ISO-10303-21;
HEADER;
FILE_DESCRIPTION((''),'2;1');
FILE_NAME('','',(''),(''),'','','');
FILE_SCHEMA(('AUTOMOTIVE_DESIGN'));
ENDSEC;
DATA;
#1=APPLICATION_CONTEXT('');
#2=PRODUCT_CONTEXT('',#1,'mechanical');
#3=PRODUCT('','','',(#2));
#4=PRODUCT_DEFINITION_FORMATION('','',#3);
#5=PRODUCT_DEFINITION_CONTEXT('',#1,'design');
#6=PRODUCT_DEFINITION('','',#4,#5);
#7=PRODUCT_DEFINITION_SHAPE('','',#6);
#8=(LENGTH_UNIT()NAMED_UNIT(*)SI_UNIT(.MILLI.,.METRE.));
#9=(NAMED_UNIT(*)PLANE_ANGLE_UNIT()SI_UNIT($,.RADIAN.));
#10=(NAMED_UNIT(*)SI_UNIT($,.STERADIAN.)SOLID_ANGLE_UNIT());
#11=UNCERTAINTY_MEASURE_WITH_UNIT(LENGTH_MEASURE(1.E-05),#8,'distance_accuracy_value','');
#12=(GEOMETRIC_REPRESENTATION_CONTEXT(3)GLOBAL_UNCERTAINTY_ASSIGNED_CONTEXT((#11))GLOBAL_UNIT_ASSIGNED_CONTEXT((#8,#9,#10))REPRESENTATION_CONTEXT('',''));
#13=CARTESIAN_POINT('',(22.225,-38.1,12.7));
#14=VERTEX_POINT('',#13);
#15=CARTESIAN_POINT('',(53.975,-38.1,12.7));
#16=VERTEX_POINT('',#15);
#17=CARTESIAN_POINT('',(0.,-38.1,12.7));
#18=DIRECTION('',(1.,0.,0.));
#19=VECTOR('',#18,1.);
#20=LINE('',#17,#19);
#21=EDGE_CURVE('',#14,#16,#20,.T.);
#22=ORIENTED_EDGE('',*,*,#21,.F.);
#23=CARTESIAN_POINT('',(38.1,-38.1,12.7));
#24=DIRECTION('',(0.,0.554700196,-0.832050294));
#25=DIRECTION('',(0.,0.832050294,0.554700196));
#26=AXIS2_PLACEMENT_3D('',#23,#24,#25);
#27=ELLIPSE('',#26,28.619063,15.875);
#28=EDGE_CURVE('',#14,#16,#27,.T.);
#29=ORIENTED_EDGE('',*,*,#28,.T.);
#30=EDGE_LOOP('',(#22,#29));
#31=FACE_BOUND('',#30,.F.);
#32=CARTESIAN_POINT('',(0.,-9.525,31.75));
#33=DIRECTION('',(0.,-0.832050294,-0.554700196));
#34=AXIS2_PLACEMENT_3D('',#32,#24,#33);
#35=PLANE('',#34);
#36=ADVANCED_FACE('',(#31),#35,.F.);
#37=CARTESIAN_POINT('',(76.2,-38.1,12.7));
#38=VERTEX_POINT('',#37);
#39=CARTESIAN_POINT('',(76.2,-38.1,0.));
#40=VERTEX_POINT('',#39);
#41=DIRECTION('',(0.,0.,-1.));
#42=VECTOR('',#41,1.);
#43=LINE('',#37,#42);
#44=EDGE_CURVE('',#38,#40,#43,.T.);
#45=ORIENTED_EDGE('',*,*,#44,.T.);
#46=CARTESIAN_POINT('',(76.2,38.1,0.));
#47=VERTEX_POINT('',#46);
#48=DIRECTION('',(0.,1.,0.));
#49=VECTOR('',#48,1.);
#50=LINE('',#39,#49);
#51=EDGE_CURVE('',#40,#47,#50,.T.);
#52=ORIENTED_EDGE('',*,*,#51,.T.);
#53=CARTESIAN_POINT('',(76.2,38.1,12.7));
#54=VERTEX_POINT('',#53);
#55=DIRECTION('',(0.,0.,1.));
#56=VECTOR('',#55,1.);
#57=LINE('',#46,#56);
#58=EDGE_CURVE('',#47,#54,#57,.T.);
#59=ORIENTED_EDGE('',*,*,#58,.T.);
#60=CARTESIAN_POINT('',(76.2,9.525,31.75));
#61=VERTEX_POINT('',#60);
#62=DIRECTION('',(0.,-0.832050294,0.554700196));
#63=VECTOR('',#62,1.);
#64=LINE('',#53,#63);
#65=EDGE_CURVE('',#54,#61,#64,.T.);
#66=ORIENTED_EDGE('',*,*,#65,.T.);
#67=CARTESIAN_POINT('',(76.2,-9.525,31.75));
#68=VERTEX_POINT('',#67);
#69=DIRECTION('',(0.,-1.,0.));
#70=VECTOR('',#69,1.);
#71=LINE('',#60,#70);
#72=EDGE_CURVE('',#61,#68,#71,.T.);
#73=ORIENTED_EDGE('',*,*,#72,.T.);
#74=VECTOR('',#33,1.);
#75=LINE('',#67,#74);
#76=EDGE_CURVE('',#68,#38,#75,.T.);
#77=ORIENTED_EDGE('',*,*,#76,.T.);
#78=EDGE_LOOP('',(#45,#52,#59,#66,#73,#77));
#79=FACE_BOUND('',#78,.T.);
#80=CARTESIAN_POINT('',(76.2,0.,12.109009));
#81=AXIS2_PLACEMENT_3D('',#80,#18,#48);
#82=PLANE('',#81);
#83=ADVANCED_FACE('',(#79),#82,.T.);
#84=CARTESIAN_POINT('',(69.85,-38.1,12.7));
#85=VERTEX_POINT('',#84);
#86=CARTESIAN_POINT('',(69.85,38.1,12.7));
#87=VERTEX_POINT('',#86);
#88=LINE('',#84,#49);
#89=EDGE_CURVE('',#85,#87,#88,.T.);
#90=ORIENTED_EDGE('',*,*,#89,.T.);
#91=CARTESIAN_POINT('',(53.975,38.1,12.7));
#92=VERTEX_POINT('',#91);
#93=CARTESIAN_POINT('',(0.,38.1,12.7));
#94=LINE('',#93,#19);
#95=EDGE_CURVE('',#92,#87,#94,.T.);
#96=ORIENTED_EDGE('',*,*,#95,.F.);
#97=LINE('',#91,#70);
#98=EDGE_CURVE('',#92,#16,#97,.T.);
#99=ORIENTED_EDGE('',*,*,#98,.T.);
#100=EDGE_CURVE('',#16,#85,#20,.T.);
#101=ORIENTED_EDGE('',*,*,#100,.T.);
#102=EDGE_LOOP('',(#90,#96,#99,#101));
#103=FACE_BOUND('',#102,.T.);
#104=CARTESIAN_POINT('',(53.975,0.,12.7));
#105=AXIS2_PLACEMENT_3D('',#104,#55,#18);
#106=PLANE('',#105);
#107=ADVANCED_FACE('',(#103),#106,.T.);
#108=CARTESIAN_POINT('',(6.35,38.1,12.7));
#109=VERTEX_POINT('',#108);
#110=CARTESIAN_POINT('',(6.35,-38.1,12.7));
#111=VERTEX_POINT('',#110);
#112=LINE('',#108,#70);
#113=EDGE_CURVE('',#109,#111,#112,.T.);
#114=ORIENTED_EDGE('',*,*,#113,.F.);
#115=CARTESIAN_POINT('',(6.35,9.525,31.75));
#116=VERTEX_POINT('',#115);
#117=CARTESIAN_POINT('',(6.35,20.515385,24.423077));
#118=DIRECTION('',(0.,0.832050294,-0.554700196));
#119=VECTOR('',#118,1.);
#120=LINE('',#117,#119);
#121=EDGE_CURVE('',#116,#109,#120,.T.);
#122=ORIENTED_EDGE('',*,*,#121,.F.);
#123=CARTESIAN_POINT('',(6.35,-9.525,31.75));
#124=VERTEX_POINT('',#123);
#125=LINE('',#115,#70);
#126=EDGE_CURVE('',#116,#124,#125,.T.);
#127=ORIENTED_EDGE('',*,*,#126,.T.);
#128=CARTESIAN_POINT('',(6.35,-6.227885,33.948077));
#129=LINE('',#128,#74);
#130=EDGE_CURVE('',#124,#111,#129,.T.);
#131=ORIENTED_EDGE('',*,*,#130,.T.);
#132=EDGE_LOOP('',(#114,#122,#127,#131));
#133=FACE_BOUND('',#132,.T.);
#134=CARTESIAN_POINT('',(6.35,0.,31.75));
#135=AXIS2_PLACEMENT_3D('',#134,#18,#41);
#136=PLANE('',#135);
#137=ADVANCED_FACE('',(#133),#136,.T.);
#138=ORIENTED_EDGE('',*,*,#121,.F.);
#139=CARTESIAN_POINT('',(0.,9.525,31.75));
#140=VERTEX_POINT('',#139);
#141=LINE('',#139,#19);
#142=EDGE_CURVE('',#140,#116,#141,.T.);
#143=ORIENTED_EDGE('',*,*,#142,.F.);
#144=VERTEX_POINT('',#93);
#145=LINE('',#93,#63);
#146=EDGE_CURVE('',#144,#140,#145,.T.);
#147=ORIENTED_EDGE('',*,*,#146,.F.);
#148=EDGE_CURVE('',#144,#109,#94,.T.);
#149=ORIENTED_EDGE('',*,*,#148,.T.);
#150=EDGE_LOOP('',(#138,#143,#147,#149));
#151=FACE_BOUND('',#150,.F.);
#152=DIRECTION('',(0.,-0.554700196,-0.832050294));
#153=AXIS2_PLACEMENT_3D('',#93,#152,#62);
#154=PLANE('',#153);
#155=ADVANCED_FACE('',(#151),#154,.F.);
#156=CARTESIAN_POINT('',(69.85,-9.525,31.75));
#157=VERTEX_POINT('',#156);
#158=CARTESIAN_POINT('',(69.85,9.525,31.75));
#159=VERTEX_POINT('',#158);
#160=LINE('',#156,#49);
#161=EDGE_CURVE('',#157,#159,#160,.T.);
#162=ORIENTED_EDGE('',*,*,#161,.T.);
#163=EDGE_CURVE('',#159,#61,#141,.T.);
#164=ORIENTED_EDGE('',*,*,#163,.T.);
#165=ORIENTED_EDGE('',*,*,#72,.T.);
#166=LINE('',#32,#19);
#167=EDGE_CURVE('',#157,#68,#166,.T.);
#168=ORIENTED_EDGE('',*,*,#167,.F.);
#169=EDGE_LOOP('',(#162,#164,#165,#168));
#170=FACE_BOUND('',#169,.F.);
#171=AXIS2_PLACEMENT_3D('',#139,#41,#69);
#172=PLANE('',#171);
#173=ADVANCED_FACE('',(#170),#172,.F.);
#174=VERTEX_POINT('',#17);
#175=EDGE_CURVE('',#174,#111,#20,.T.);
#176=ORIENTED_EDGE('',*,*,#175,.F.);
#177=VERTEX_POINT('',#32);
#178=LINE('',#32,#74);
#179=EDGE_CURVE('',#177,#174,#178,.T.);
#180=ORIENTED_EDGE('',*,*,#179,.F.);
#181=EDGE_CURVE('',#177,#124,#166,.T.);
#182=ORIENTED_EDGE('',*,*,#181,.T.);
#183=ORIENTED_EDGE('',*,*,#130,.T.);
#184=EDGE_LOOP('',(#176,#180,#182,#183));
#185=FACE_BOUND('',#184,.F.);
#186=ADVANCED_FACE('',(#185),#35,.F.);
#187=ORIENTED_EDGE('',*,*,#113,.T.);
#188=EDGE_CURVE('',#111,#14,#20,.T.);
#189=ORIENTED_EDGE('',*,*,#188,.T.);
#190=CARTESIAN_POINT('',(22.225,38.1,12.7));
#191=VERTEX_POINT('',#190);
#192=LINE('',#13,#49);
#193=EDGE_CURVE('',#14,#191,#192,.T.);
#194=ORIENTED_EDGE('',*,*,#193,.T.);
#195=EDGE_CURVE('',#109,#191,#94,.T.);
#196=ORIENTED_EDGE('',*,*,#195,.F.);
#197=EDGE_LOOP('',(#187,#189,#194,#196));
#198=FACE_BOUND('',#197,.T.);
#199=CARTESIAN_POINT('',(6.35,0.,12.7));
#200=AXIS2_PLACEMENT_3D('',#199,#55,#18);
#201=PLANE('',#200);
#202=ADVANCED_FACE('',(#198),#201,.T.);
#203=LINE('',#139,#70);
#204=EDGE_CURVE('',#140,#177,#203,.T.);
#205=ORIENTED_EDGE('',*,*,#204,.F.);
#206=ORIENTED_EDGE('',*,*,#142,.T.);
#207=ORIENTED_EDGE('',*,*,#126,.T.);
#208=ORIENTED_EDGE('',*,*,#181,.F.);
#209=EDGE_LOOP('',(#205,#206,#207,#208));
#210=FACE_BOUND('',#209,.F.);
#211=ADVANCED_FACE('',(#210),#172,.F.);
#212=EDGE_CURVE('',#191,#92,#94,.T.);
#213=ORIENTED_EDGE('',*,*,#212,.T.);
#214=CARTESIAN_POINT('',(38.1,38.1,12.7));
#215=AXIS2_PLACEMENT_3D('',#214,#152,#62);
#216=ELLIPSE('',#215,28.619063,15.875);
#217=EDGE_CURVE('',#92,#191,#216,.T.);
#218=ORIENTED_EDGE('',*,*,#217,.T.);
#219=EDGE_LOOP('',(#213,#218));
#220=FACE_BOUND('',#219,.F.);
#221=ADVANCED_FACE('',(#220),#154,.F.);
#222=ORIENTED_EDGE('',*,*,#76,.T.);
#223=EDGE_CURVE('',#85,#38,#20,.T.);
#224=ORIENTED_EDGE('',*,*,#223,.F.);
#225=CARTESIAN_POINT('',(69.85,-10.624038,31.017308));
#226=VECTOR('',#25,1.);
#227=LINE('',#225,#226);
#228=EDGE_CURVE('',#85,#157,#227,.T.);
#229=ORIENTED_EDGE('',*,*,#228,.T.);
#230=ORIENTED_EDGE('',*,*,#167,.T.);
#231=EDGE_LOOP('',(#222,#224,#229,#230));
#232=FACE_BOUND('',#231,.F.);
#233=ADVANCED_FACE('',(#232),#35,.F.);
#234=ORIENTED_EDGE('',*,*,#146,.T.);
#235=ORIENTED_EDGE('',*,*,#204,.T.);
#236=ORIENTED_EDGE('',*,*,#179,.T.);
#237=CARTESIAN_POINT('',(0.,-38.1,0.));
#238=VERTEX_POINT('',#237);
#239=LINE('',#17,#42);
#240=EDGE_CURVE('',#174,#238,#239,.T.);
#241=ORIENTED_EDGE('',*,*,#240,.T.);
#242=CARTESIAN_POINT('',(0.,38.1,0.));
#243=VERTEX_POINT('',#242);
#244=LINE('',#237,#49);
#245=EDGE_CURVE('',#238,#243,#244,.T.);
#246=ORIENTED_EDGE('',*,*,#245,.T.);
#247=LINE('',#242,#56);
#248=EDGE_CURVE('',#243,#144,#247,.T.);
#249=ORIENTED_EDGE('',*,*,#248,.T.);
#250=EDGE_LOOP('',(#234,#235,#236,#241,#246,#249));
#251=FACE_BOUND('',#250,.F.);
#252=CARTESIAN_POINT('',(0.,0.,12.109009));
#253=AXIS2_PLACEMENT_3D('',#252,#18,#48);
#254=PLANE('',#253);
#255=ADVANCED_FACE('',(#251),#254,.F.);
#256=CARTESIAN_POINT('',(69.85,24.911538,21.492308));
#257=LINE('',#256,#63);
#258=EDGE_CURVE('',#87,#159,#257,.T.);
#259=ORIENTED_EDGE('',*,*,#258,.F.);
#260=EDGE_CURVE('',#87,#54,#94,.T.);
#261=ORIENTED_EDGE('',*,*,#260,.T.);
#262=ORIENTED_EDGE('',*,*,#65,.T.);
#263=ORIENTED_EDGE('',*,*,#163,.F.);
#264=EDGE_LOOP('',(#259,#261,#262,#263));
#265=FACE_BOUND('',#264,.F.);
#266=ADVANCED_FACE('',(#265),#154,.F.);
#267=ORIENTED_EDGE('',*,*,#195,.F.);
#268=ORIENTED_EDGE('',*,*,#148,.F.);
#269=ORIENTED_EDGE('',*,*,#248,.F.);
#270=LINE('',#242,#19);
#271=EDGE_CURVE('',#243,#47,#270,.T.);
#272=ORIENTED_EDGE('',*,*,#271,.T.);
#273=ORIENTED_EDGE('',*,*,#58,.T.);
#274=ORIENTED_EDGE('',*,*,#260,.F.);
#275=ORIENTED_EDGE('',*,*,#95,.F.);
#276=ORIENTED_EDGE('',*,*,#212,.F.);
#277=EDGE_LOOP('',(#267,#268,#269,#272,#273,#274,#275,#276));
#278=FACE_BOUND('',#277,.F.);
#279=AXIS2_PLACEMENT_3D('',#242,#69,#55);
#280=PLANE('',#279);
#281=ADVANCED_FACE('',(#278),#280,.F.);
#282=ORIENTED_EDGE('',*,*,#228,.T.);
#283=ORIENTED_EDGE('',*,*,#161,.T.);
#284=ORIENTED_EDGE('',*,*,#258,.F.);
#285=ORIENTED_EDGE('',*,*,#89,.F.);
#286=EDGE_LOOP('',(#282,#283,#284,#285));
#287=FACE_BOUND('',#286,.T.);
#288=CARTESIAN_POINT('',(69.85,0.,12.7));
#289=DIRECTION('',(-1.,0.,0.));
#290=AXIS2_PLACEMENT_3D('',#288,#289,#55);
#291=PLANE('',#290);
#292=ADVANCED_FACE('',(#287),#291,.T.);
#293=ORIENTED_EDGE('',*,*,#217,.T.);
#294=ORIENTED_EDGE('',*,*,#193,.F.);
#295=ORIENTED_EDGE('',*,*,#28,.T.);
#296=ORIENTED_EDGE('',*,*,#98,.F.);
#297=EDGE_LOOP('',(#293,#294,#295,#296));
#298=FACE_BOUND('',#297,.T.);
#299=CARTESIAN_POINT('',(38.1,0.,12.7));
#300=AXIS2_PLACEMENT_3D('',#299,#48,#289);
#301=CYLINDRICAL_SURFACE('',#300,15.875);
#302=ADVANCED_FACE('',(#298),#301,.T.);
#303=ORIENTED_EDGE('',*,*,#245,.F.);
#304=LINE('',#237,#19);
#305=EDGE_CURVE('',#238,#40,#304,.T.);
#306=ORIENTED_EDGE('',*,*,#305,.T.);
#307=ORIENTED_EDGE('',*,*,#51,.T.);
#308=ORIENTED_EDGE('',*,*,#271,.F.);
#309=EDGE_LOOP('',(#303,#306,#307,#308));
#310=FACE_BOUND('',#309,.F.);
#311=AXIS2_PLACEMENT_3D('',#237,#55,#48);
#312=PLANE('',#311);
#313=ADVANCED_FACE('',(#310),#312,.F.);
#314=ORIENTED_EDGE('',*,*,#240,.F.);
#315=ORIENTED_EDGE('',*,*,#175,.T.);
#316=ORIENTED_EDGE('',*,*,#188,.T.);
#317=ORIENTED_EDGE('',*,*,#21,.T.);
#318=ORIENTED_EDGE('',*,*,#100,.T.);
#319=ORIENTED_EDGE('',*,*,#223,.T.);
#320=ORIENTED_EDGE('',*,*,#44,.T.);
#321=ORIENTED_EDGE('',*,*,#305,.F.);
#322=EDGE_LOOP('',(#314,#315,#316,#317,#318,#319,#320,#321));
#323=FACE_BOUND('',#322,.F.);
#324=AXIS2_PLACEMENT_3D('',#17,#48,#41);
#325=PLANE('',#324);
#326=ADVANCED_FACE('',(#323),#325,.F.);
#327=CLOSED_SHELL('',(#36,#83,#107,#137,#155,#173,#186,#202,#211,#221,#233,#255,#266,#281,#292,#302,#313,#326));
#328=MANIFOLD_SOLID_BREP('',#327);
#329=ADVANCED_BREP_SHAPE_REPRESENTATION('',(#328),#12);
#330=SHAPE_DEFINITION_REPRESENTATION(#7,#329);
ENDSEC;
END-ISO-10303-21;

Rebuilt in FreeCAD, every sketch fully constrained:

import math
import FreeCAD as App
import Part
import Sketcher
Q = App.Units.Quantity

doc = App.newDocument("Part")
body = doc.addObject("PartDesign::Body", "Body")

sketch1 = body.newObject("Sketcher::SketchObject", "Sketch")
sketch1.AttachmentSupport = (doc.getObject("YZ_Plane"), [""])
sketch1.MapMode = "FlatFace"
sketch1.addGeometry([
    Part.LineSegment(App.Vector(-38.1, 12.7, 0), App.Vector(-38.1, 0, 0)),
    Part.LineSegment(App.Vector(-38.1, 0, 0), App.Vector(38.1, 0, 0)),
    Part.LineSegment(App.Vector(38.1, 0, 0), App.Vector(38.1, 12.7, 0)),
    Part.LineSegment(App.Vector(38.1, 12.7, 0), App.Vector(9.525, 31.75, 0)),
    Part.LineSegment(App.Vector(9.525, 31.75, 0), App.Vector(-9.525, 31.75, 0)),
    Part.LineSegment(App.Vector(-9.525, 31.75, 0), App.Vector(-38.1, 12.7, 0)),
], False)
sketch1.addConstraint([
    Sketcher.Constraint("Coincident", 0, 2, 1, 1),
    Sketcher.Constraint("Coincident", 1, 2, 2, 1),
    Sketcher.Constraint("Coincident", 2, 2, 3, 1),
    Sketcher.Constraint("Coincident", 3, 2, 4, 1),
    Sketcher.Constraint("Coincident", 4, 2, 5, 1),
    Sketcher.Constraint("Coincident", 5, 2, 0, 1),
    Sketcher.Constraint("Vertical", 0),
    Sketcher.Constraint("Horizontal", 1),
    Sketcher.Constraint("Vertical", 2),
    Sketcher.Constraint("Horizontal", 4),
    Sketcher.Constraint("Symmetric", 0, 2, 1, 2, -1, 1),
    Sketcher.Constraint("Horizontal", 2, 2, 5, 2),
    Sketcher.Constraint("Equal", 3, 5),
    Sketcher.Constraint("DistanceX", 1, 1, 1, 2, Q("3 in")),
    Sketcher.Constraint("DistanceY", 0, 2, 0, 1, Q("0.5 in")),
    Sketcher.Constraint("DistanceX", 4, 2, 4, 1, Q("0.75 in")),
    Sketcher.Constraint("DistanceY", -1, 1, 3, 2, Q("1.25 in")),
])
pad1 = body.newObject("PartDesign::Pad", "Pad")
pad1.Profile = sketch1
pad1.Length = Q("3 in")

sketch2 = body.newObject("Sketcher::SketchObject", "Sketch001")
sketch2.AttachmentSupport = (doc.getObject("XZ_Plane"), [""])
sketch2.MapMode = "FlatFace"
sketch2.addGeometry([
    Part.LineSegment(App.Vector(69.85, 31.75, 0), App.Vector(6.35, 31.75, 0)),
    Part.LineSegment(App.Vector(6.35, 31.75, 0), App.Vector(6.35, 12.7, 0)),
    Part.LineSegment(App.Vector(6.35, 12.7, 0), App.Vector(22.225, 12.7, 0)),
    Part.ArcOfCircle(Part.Circle(App.Vector(38.1, 12.7, 0), App.Vector(0, 0, 1), 15.875), math.radians(0), math.radians(180)),
    Part.LineSegment(App.Vector(53.975, 12.7, 0), App.Vector(69.85, 12.7, 0)),
    Part.LineSegment(App.Vector(69.85, 12.7, 0), App.Vector(69.85, 31.75, 0)),
], False)
sketch2.addConstraint([
    Sketcher.Constraint("Coincident", 0, 2, 1, 1),
    Sketcher.Constraint("Coincident", 1, 2, 2, 1),
    Sketcher.Constraint("Coincident", 2, 2, 3, 2),
    Sketcher.Constraint("Coincident", 3, 1, 4, 1),
    Sketcher.Constraint("Coincident", 4, 2, 5, 1),
    Sketcher.Constraint("Coincident", 5, 2, 0, 1),
    Sketcher.Constraint("Horizontal", 0),
    Sketcher.Constraint("Vertical", 1),
    Sketcher.Constraint("Horizontal", 2),
    Sketcher.Constraint("Horizontal", 4),
    Sketcher.Constraint("Vertical", 5),
    Sketcher.Constraint("Horizontal", 3, 3, 1, 2),
    Sketcher.Constraint("Horizontal", 2, 2, 3, 1),
    Sketcher.Constraint("Equal", 2, 4),
    Sketcher.Constraint("DistanceX", 0, 2, 0, 1, Q("2.5 in")),
    Sketcher.Constraint("Radius", 3, Q("0.625 in")),
    Sketcher.Constraint("DistanceY", 1, 2, 1, 1, Q("0.75 in")),
    Sketcher.Constraint("DistanceX", -1, 1, 3, 3, Q("1.5 in")),
    Sketcher.Constraint("DistanceY", -1, 1, 3, 3, Q("0.5 in")),
])
pocket1 = body.newObject("PartDesign::Pocket", "Pocket")
pocket1.Profile = sketch2
pocket1.Type = "ThroughAll"
pocket1.Midplane = True

doc.recompute()
